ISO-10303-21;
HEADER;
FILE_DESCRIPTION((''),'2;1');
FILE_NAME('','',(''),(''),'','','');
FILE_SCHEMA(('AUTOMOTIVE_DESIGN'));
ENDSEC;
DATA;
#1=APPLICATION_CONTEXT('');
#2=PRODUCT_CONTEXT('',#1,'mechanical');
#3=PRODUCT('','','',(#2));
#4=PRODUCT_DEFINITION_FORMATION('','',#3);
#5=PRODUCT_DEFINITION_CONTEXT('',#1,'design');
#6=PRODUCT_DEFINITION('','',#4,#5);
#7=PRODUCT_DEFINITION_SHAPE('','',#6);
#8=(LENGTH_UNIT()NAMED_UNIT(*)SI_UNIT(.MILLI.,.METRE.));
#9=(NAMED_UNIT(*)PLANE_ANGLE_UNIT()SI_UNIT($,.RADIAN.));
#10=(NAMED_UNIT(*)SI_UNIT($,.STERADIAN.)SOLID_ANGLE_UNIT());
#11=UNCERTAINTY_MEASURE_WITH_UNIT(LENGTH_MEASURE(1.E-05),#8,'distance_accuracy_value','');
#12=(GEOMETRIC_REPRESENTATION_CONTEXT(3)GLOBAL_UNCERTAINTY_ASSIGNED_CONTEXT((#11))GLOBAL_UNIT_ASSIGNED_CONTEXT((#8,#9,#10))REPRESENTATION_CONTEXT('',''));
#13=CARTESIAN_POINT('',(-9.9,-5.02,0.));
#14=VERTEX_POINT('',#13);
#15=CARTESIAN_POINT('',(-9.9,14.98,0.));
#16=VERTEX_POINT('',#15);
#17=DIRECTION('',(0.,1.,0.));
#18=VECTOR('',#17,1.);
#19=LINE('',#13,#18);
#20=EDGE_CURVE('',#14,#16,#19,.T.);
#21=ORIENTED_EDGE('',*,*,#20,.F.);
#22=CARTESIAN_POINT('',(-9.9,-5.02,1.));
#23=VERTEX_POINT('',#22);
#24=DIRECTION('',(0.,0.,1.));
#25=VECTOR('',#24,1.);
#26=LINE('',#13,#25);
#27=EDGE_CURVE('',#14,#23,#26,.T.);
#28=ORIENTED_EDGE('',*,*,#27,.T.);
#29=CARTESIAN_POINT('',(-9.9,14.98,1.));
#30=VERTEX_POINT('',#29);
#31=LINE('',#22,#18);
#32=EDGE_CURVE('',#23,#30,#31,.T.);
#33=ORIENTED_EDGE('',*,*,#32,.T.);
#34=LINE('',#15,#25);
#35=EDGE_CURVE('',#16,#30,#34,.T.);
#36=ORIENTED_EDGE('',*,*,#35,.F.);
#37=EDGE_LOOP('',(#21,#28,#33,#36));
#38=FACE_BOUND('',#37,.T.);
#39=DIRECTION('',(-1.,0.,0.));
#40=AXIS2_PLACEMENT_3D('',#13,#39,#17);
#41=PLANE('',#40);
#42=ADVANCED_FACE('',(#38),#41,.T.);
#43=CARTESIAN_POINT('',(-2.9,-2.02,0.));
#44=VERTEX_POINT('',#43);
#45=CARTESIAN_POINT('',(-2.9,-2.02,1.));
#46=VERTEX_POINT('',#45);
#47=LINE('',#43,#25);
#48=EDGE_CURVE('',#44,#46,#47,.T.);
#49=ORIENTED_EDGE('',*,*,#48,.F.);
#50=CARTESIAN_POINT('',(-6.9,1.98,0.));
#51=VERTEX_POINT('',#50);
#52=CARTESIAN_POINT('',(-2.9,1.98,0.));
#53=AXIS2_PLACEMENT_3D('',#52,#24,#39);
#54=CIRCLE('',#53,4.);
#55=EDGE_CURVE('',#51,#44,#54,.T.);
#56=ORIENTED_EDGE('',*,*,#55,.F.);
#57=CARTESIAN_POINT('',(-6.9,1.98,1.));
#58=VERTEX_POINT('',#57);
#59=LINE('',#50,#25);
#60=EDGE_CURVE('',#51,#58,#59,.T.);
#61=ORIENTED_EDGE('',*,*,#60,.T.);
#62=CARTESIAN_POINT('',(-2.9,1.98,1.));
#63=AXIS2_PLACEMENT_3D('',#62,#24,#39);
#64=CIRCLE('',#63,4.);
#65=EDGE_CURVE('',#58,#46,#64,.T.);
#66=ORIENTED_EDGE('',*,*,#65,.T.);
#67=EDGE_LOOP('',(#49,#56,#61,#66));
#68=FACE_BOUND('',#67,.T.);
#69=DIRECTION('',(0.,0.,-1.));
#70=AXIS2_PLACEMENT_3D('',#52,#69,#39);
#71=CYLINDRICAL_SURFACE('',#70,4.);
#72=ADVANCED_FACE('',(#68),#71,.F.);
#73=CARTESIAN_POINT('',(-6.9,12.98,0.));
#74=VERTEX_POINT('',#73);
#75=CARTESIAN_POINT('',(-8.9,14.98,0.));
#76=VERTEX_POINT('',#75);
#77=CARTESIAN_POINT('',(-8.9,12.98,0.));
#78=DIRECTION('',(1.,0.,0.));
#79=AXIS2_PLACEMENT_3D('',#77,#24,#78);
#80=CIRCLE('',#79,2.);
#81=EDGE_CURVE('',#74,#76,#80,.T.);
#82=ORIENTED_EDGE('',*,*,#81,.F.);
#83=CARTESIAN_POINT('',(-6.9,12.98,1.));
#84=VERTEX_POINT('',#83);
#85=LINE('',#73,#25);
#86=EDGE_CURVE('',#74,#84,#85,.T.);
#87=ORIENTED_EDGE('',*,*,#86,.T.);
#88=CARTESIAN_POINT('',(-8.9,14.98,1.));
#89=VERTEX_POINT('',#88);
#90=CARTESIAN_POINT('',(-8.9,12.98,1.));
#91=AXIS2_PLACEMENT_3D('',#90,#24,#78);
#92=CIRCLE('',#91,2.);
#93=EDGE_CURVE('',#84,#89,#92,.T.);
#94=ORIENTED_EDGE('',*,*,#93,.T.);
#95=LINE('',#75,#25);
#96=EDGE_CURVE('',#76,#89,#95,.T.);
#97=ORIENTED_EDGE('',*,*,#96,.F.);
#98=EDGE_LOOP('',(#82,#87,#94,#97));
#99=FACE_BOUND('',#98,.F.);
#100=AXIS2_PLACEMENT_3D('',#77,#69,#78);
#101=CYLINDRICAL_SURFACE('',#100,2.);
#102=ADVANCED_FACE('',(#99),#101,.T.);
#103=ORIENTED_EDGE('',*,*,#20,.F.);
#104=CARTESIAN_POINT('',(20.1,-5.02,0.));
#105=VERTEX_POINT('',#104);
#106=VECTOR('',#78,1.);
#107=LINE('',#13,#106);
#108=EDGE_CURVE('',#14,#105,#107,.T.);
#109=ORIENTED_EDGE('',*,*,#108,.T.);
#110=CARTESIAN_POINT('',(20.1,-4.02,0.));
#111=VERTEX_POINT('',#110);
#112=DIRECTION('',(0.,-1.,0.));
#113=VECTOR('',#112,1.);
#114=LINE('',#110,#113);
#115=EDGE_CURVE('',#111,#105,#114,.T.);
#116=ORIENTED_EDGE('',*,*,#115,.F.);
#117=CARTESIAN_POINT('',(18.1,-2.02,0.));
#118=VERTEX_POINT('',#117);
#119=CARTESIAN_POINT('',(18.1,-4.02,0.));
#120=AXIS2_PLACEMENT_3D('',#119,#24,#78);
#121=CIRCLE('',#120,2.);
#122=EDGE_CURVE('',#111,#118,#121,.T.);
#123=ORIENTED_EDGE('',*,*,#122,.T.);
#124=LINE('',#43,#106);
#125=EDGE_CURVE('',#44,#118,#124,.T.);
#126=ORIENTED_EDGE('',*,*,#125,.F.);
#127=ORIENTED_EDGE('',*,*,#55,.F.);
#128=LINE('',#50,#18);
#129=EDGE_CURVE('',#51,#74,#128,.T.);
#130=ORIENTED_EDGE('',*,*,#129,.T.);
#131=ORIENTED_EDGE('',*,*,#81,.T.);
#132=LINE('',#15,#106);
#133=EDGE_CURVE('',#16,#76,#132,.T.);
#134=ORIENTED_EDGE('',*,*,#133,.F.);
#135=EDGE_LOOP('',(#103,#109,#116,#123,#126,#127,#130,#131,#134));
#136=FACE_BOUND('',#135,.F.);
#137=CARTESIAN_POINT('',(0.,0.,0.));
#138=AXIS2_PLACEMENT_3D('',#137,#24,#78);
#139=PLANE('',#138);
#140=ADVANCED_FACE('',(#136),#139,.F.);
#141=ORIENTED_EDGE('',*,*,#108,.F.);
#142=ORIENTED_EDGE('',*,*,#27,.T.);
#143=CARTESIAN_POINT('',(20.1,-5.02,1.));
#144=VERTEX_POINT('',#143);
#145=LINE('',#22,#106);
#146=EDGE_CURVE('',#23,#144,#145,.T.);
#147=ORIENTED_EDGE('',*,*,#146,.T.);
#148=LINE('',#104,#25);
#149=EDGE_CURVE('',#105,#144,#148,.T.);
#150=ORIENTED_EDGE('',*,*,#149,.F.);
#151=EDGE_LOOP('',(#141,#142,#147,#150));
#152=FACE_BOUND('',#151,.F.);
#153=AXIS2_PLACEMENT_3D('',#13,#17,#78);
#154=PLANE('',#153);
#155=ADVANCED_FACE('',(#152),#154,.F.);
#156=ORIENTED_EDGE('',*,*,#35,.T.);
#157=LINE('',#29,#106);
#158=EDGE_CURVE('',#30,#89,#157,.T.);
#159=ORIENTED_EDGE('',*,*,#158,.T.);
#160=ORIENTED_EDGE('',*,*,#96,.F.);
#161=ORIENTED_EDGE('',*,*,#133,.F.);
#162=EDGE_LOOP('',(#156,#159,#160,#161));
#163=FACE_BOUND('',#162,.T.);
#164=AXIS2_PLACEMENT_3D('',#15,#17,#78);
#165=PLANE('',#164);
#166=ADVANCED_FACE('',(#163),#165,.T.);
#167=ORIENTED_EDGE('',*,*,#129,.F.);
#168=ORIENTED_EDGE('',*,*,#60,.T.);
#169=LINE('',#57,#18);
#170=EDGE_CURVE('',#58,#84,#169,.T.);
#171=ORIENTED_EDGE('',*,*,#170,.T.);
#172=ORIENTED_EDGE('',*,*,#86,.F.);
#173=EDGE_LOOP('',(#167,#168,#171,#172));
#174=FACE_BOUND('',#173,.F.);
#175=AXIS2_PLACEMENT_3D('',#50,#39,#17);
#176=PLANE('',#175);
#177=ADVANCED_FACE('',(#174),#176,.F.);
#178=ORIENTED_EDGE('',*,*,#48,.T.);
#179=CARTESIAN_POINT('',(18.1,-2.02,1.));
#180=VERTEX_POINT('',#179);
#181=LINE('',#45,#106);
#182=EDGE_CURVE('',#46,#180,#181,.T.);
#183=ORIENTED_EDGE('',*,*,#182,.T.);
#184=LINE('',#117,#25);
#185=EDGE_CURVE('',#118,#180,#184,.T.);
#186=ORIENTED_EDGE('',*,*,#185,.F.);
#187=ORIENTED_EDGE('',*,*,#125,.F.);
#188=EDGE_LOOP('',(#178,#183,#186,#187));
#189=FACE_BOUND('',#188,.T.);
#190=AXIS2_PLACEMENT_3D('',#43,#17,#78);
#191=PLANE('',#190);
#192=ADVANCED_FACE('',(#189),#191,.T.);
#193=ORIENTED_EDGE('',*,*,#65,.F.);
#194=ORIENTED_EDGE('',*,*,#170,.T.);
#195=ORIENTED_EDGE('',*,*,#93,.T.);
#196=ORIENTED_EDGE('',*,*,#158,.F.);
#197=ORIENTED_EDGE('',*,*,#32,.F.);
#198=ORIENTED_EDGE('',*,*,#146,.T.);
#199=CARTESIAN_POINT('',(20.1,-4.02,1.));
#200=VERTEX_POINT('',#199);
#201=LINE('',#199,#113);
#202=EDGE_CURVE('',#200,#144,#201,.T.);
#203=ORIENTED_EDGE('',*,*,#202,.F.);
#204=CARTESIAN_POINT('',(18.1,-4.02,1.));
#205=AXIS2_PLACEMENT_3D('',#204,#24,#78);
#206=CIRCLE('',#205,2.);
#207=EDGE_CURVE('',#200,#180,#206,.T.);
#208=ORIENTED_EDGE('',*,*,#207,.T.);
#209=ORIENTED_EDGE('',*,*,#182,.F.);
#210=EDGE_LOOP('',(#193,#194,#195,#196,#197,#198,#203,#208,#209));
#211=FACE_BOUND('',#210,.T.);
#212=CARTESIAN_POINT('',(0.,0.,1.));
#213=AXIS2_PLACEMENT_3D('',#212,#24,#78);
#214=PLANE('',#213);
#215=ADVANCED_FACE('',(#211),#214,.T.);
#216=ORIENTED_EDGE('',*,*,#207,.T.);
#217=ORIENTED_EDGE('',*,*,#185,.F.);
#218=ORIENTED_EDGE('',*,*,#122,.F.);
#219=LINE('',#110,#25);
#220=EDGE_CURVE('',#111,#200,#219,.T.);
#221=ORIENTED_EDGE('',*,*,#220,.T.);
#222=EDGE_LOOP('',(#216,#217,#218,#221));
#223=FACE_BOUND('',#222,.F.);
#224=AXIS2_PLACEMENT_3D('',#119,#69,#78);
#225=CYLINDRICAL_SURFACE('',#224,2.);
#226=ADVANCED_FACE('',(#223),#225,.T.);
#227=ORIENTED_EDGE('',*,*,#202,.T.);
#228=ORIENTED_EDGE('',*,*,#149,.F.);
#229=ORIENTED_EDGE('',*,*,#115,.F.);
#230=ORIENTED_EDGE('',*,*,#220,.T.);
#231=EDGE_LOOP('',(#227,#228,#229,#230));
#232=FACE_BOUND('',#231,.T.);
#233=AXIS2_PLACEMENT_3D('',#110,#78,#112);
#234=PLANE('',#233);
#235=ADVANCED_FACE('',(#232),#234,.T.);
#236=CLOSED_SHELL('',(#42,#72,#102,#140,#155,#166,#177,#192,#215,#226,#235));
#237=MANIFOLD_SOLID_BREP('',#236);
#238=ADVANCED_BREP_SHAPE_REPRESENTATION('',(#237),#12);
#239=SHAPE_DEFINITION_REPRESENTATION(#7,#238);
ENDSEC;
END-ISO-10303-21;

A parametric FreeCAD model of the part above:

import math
import FreeCAD as App
import Part
import Sketcher

V = App.Vector
Q = App.Units.Quantity

doc = App.newDocument("Part")
body = doc.addObject("PartDesign::Body", "Body")

# Sketch on XY plane
sketch1 = doc.addObject("Sketcher::SketchObject", "Sketch")
body.addObject(sketch1)
sketch1.AttachmentSupport = (doc.XY_Plane, [""])
sketch1.MapMode = "FlatFace"
sketch1.addGeometry(Part.ArcOfCircle(Part.Circle(V(-2.9, 2, 0), V(0, 0, 1), 4), math.radians(180), math.radians(270)), False)
sketch1.addGeometry(Part.LineSegment(V(-6.9, 2, 0), V(-6.9, 13, 0)), False)
sketch1.addGeometry(Part.ArcOfCircle(Part.Circle(V(-8.9, 13, 0), V(0, 0, 1), 2), math.radians(0), math.radians(90)), False)
sketch1.addGeometry(Part.LineSegment(V(-8.9, 15, 0), V(-9.9, 15, 0)), False)
sketch1.addGeometry(Part.LineSegment(V(-9.9, 15, 0), V(-9.9, -5, 0)), False)
sketch1.addGeometry(Part.LineSegment(V(-9.9, -5, 0), V(20.1, -5, 0)), False)
sketch1.addGeometry(Part.LineSegment(V(20.1, -5, 0), V(20.1, -4, 0)), False)
sketch1.addGeometry(Part.ArcOfCircle(Part.Circle(V(18.1, -4, 0), V(0, 0, 1), 2), math.radians(0), math.radians(90)), False)
sketch1.addGeometry(Part.LineSegment(V(18.1, -2, 0), V(-2.9, -2, 0)), False)
sketch1.addConstraint(Sketcher.Constraint("Tangent", 0, 1, 1, 1))
sketch1.addConstraint(Sketcher.Constraint("Tangent", 1, 2, 2, 1))
sketch1.addConstraint(Sketcher.Constraint("Tangent", 2, 2, 3, 1))
sketch1.addConstraint(Sketcher.Constraint("Coincident", 3, 2, 4, 1))
sketch1.addConstraint(Sketcher.Constraint("Coincident", 4, 2, 5, 1))
sketch1.addConstraint(Sketcher.Constraint("Coincident", 5, 2, 6, 1))
sketch1.addConstraint(Sketcher.Constraint("Tangent", 6, 2, 7, 1))
sketch1.addConstraint(Sketcher.Constraint("Tangent", 7, 2, 8, 1))
sketch1.addConstraint(Sketcher.Constraint("Tangent", 8, 2, 0, 2))
sketch1.addConstraint(Sketcher.Constraint("Vertical", 1))
sketch1.addConstraint(Sketcher.Constraint("Horizontal", 3))
sketch1.addConstraint(Sketcher.Constraint("Vertical", 4))
sketch1.addConstraint(Sketcher.Constraint("Horizontal", 5))
sketch1.addConstraint(Sketcher.Constraint("Vertical", 6))
sketch1.addConstraint(Sketcher.Constraint("Horizontal", 8))
sketch1.addConstraint(Sketcher.Constraint("Equal", 2, 7))
sketch1.addConstraint(Sketcher.Constraint("Equal", 3, 6))
sketch1.addConstraint(Sketcher.Constraint("Radius", 0, Q("4 mm")))
sketch1.addConstraint(Sketcher.Constraint("Radius", 2, Q("2 mm")))
sketch1.addConstraint(Sketcher.Constraint("DistanceX", 5, 1, 5, 2, Q("30 mm")))
sketch1.addConstraint(Sketcher.Constraint("DistanceY", 4, 2, 4, 1, Q("20 mm")))
sketch1.addConstraint(Sketcher.Constraint("DistanceX", 3, 2, 1, 2, Q("3 mm")))
sketch1.addConstraint(Sketcher.Constraint("DistanceX", 3, 2, -1, 1, Q("9.9 mm")))
sketch1.addConstraint(Sketcher.Constraint("DistanceY", 4, 2, -1, 1, Q("5.02 mm")))
pad1 = doc.addObject("PartDesign::Pad", "Pad")
body.addObject(pad1)
pad1.Profile = sketch1
pad1.Length = 1

doc.recompute()
